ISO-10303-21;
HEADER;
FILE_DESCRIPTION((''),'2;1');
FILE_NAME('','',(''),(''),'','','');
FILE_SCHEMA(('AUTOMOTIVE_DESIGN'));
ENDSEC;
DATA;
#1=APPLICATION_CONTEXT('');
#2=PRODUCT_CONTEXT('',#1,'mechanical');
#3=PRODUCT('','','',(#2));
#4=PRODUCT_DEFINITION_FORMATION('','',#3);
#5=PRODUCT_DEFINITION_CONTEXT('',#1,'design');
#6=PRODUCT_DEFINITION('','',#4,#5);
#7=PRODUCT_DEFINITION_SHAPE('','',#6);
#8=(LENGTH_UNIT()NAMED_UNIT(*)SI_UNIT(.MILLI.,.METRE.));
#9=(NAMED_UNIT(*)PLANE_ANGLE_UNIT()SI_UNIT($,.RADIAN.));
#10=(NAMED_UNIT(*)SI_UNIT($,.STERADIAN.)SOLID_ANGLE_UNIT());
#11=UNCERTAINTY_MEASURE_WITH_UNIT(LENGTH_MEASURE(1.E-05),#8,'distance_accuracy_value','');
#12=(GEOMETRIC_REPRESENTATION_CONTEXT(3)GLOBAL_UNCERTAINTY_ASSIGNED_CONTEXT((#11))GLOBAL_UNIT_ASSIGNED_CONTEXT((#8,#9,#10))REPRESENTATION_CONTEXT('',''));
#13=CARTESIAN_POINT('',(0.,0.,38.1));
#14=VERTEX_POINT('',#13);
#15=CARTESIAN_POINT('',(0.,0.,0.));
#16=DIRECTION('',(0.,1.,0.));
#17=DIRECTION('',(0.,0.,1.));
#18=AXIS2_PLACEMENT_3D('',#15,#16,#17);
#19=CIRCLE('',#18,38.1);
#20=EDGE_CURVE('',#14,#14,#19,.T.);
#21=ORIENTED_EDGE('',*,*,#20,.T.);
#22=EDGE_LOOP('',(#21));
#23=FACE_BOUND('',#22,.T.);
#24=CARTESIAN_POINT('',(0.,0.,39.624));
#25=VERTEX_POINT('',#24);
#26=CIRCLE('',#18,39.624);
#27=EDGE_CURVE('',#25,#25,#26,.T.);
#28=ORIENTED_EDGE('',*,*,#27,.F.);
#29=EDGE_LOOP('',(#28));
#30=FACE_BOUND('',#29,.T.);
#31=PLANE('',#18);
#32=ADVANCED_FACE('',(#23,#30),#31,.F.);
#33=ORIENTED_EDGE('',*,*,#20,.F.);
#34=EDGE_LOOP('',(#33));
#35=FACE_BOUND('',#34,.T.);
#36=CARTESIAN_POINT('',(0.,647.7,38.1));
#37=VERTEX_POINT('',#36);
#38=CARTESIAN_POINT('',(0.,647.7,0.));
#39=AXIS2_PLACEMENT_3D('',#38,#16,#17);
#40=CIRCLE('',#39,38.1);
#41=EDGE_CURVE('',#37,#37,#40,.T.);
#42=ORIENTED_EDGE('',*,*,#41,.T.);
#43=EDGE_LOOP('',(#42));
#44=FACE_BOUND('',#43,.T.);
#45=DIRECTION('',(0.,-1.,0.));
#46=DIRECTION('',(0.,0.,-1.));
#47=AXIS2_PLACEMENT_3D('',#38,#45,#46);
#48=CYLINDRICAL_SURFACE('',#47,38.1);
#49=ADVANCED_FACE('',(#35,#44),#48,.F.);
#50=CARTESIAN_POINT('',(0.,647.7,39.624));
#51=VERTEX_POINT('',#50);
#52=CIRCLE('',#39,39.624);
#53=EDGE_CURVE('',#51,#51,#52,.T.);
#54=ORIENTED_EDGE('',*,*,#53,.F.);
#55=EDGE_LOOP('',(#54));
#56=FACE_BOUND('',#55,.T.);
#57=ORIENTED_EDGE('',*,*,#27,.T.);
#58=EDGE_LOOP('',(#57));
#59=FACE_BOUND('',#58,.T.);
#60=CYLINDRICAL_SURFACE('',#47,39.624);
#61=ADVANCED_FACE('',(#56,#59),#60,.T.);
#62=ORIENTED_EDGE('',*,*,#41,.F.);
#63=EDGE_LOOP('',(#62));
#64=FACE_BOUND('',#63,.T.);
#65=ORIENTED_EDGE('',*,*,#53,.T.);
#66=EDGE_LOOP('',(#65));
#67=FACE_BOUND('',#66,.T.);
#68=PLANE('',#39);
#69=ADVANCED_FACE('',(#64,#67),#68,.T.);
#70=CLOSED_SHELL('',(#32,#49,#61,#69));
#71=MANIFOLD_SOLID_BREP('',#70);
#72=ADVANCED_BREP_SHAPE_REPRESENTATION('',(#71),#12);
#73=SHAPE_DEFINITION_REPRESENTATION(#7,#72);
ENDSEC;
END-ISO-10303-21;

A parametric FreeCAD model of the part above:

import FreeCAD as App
import Part
import Sketcher

V = App.Vector
Q = App.Units.Quantity

doc = App.newDocument("Part")
body = doc.addObject("PartDesign::Body", "Body")

# Sketch on XZ plane
sketch1 = body.newObject("Sketcher::SketchObject", "Sketch")
sketch1.AttachmentSupport = (doc.getObject("XZ_Plane"), [""])
sketch1.MapMode = "FlatFace"
sketch1.addGeometry([
    Part.Circle(V(0, 0, 0), V(0, 0, 1), 39.624),
    Part.Circle(V(0, 0, 0), V(0, 0, 1), 38.1),
], False)
sketch1.addConstraint([
    Sketcher.Constraint("Coincident", 0, 3, -1, 1),
    Sketcher.Constraint("Coincident", 1, 3, -1, 1),
    Sketcher.Constraint("Diameter", 1, Q("3 in")),
    Sketcher.Constraint("Diameter", 0, Q("3.12 in")),
])
pad1 = body.newObject("PartDesign::Pad", "Pad")
pad1.Profile = sketch1
pad1.Length = Q("25.5 in")
pad1.Reversed = True

doc.recompute()
